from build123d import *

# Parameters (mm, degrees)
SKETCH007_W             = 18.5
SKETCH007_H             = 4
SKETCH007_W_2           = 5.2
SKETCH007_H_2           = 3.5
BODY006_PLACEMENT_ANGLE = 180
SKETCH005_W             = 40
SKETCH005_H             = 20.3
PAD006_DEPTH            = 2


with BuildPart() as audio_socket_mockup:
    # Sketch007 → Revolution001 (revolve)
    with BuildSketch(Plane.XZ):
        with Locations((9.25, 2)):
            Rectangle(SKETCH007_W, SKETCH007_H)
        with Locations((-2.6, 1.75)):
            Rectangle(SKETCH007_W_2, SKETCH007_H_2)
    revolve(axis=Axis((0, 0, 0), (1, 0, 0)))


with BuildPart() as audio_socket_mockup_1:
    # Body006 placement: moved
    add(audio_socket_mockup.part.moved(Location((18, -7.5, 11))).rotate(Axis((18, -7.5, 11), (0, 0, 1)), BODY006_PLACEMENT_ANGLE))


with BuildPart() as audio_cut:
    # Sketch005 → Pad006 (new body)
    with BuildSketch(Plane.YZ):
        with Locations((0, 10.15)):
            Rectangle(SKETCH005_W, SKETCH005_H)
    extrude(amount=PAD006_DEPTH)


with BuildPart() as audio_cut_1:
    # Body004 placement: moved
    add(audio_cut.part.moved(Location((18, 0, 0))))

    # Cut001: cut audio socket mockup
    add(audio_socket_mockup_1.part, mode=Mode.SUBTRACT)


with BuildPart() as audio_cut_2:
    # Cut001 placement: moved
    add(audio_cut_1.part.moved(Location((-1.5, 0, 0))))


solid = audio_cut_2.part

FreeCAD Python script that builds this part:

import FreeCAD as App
import Part
import Sketcher
from FreeCAD import Vector

doc = App.newDocument("Part")
params = doc.addObject("Spreadsheet::Sheet", "Params")
for row, (alias, value) in enumerate([
    ("sketch1_height", "4 mm"),
    ("sketch1_width", "5.2 mm"),
    ("sketch1_width2", "23.7 mm"),
    ("sketch1_height2", "0.5 mm"),
    ("revolution_angle", "360 deg"),
    ("sketch2_width", "40 mm"),
    ("sketch2_height", "20.3 mm"),
    ("pad1_length", "2 mm"),
], start=1):
    params.set(f"A{row}", alias)
    params.set(f"B{row}", "=" + value)
    params.setAlias(f"B{row}", alias)

body = doc.addObject("PartDesign::Body", "Body")

sketch1 = body.newObject("Sketcher::SketchObject", "Sketch")
sketch1.AttachmentSupport = (doc.getObject("XZ_Plane"), [""])
sketch1.MapMode = "FlatFace"
sketch1.addGeometry([
    Part.LineSegment(Vector(0, 4, 0), Vector(0, 3.5, 0)),
    Part.LineSegment(Vector(0, 3.5, 0), Vector(-5.2, 3.5, 0)),
    Part.LineSegment(Vector(-5.2, 3.5, 0), Vector(-5.2, 0, 0)),
    Part.LineSegment(Vector(-5.2, 0, 0), Vector(18.5, 0, 0)),
    Part.LineSegment(Vector(18.5, 0, 0), Vector(18.5, 4, 0)),
    Part.LineSegment(Vector(18.5, 4, 0), Vector(0, 4, 0)),
], False)
sketch1.addConstraint([
    Sketcher.Constraint("Coincident", 0, 2, 1, 1),
    Sketcher.Constraint("Coincident", 1, 2, 2, 1),
    Sketcher.Constraint("Coincident", 2, 2, 3, 1),
    Sketcher.Constraint("Coincident", 3, 2, 4, 1),
    Sketcher.Constraint("Coincident", 4, 2, 5, 1),
    Sketcher.Constraint("Coincident", 5, 2, 0, 1),
    Sketcher.Constraint("Vertical", 0),
    Sketcher.Constraint("Horizontal", 1),
    Sketcher.Constraint("Vertical", 2),
    Sketcher.Constraint("Horizontal", 3),
    Sketcher.Constraint("Vertical", 4),
    Sketcher.Constraint("Horizontal", 5),
    Sketcher.Constraint("PointOnObject", 0, 2, -2),
    Sketcher.Constraint("PointOnObject", 2, 2, -1),
    Sketcher.Constraint("DistanceY", 4, 1, 4, 2, 4.0),
    Sketcher.Constraint("DistanceX", 1, 2, 1, 1, 5.2),
    Sketcher.Constraint("DistanceX", 3, 1, 3, 2, 23.7),
    Sketcher.Constraint("DistanceY", 0, 2, 0, 1, 0.5),
])
sketch1.setExpression("Constraints[14]", "Params.sketch1_height")
sketch1.setExpression("Constraints[15]", "Params.sketch1_width")
sketch1.setExpression("Constraints[16]", "Params.sketch1_width2")
sketch1.setExpression("Constraints[17]", "Params.sketch1_height2")
revolution = body.newObject("PartDesign::Revolution", "Revolution")
revolution.Profile = sketch1
revolution.ReferenceAxis = (sketch1, ["H_Axis"])
revolution.setExpression("Angle", "Params.revolution_angle")
body2 = doc.addObject("PartDesign::Body", "Body001")
doc.recompute()

body.Placement = App.Placement(Vector(18, -7.5, 11), App.Rotation(Vector(0, 0, 1), 180))
boolean = body2.newObject("PartDesign::Boolean", "Boolean")
boolean.Type = "Fuse"
boolean.addObjects([body])
body3 = doc.addObject("PartDesign::Body", "Body002")

sketch2 = body3.newObject("Sketcher::SketchObject", "Sketch001")
sketch2.AttachmentSupport = (doc.getObject("YZ_Plane002"), [""])
sketch2.MapMode = "FlatFace"
sketch2.addGeometry([
    Part.LineSegment(Vector(-20, 20, 0), Vector(-20, 0, 0)),
    Part.LineSegment(Vector(-20, 0, 0), Vector(20, 0, 0)),
    Part.LineSegment(Vector(20, 0, 0), Vector(20, 20, 0)),
    Part.LineSegment(Vector(20, 20, 0), Vector(-20, 20, 0)),
], False)
sketch2.addConstraint([
    Sketcher.Constraint("Coincident", 0, 2, 1, 1),
    Sketcher.Constraint("Coincident", 1, 2, 2, 1),
    Sketcher.Constraint("Coincident", 2, 2, 3, 1),
    Sketcher.Constraint("Coincident", 3, 2, 0, 1),
    Sketcher.Constraint("Vertical", 0),
    Sketcher.Constraint("Horizontal", 1),
    Sketcher.Constraint("Vertical", 2),
    Sketcher.Constraint("Horizontal", 3),
    Sketcher.Constraint("Symmetric", 0, 2, 1, 2, -1, 1),
    Sketcher.Constraint("DistanceX", 1, 1, 1, 2, 40.0),
    Sketcher.Constraint("DistanceY", 0, 2, 0, 1, 20.3),
])
sketch2.setExpression("Constraints[9]", "Params.sketch2_width")
sketch2.setExpression("Constraints[10]", "Params.sketch2_height")
pad1 = body3.newObject("PartDesign::Pad", "Pad")
pad1.Profile = sketch2
pad1.setExpression("Length", "Params.pad1_length")
body4 = doc.addObject("PartDesign::Body", "Body003")
doc.recompute()

body3.Placement = App.Placement(Vector(18, 0, 0), App.Rotation(Vector(0, 0, 1), 0))
boolean2 = body4.newObject("PartDesign::Boolean", "Boolean001")
boolean2.Type = "Fuse"
boolean2.addObjects([body3])
doc.recompute()

boolean3 = body4.newObject("PartDesign::Boolean", "Boolean002")
boolean3.Type = "Cut"
boolean3.addObjects([body2])
body5 = doc.addObject("PartDesign::Body", "Body004")
doc.recompute()

body4.Placement = App.Placement(Vector(-1.5, 0, 0), App.Rotation(Vector(0, 0, 1), 0))
boolean4 = body5.newObject("PartDesign::Boolean", "Boolean003")
boolean4.Type = "Fuse"
boolean4.addObjects([body4])

doc.recompute()
